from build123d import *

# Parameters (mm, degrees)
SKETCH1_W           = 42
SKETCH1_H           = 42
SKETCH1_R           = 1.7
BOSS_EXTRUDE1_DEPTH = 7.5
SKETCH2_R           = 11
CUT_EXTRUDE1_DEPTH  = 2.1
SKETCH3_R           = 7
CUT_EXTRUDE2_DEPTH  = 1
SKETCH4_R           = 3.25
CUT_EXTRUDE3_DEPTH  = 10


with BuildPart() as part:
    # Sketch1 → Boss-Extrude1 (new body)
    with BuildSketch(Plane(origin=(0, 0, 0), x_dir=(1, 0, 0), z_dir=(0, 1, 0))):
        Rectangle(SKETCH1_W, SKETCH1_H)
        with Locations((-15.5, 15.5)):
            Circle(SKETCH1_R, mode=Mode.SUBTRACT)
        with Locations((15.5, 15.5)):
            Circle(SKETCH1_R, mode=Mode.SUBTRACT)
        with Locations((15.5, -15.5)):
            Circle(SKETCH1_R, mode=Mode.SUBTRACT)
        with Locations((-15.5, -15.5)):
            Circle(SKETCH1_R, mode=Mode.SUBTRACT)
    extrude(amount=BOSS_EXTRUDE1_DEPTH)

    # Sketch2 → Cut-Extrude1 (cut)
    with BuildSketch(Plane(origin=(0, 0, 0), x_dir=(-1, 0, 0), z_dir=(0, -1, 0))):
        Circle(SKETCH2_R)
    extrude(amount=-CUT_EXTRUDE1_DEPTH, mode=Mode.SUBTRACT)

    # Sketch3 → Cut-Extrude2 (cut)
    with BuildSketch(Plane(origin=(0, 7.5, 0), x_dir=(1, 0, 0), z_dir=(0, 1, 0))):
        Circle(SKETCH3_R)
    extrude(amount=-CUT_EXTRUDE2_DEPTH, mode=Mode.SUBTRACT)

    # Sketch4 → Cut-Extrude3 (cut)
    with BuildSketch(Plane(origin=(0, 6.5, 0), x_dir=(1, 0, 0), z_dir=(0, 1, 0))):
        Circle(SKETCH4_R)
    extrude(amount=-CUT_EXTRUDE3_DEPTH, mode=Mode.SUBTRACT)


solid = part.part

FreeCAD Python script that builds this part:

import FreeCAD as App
import Part
import Sketcher

V = App.Vector

doc = App.newDocument("Part")
body = doc.addObject("PartDesign::Body", "Body")

# Sketch on XZ plane
sketch1 = body.newObject("Sketcher::SketchObject", "Sketch")
sketch1.AttachmentSupport = (doc.getObject("XZ_Plane"), [""])
sketch1.MapMode = "FlatFace"
sketch1.addGeometry([
    Part.LineSegment(V(-21, -21, 0), V(-21, 21, 0)),  # 0
    Part.LineSegment(V(-21, 21, 0), V(21, 21, 0)),  # 1
    Part.LineSegment(V(21, 21, 0), V(21, -21, 0)),  # 2
    Part.LineSegment(V(21, -21, 0), V(-21, -21, 0)),  # 3
    Part.Circle(V(-15.5, 15.5, 0), V(0, 0, 1), 1.7),  # 4
    Part.Circle(V(15.5, 15.5, 0), V(0, 0, 1), 1.7),  # 5
    Part.Circle(V(-15.5, -15.5, 0), V(0, 0, 1), 1.7),  # 6
    Part.Circle(V(15.5, -15.5, 0), V(0, 0, 1), 1.7),  # 7
], False)
sketch1.addConstraint([
    Sketcher.Constraint("Coincident", 0, 2, 1, 1),
    Sketcher.Constraint("Coincident", 1, 2, 2, 1),
    Sketcher.Constraint("Coincident", 2, 2, 3, 1),
    Sketcher.Constraint("Coincident", 3, 2, 0, 1),
    Sketcher.Constraint("Vertical", 0),
    Sketcher.Constraint("Horizontal", 1),
    Sketcher.Constraint("Vertical", 2),
    Sketcher.Constraint("Horizontal", 3),
    Sketcher.Constraint("Equal", 4, 5),
    Sketcher.Constraint("Equal", 5, 6),
    Sketcher.Constraint("Equal", 6, 7),
    Sketcher.Constraint("Symmetric", 5, 3, 6, 3, -1, 1),
    Sketcher.Constraint("Symmetric", 4, 3, 7, 3, -1, 1),
    Sketcher.Constraint("Symmetric", 0, 2, 2, 2, -1, 1),
    Sketcher.Constraint("Symmetric", 4, 3, 5, 3, -2),
    Sketcher.Constraint("Equal", 3, 0),
    Sketcher.Constraint("Diameter", 4, 3.4),
    Sketcher.Constraint("DistanceX", 1, 1, 1, 2, 42.0),
    Sketcher.Constraint("DistanceX", 4, 3, 5, 3, 31.0),
    Sketcher.Constraint("DistanceY", 6, 3, 4, 3, 31.0),
])
pad1 = body.newObject("PartDesign::Pad", "Pad")
pad1.Profile = sketch1
pad1.Length = 7.5
pad1.Reversed = True

# Sketch on XZ plane
sketch2 = body.newObject("Sketcher::SketchObject", "Sketch001")
sketch2.AttachmentSupport = (doc.getObject("XZ_Plane"), [""])
sketch2.MapMode = "FlatFace"
sketch2.addGeometry(Part.Circle(V(0, 0, 0), V(0, 0, 1), 11), False)
sketch2.addConstraint([
    Sketcher.Constraint("Coincident", 0, 3, -1, 1),
    Sketcher.Constraint("Diameter", 0, 22.0),
])
pocket1 = body.newObject("PartDesign::Pocket", "Pocket")
pocket1.Profile = sketch2
pocket1.Length = 2.1

# Sketch on XZ plane
sketch3 = body.newObject("Sketcher::SketchObject", "Sketch002")
sketch3.AttachmentSupport = (doc.getObject("XZ_Plane"), [""])
sketch3.MapMode = "FlatFace"
sketch3.AttachmentOffset = App.Placement(V(0, 0, -7.5), App.Rotation())
sketch3.addGeometry(Part.Circle(V(0, 0, 0), V(0, 0, 1), 7), False)
sketch3.addConstraint([
    Sketcher.Constraint("Coincident", 0, 3, -1, 1),
    Sketcher.Constraint("Diameter", 0, 14.0),
])
pocket2 = body.newObject("PartDesign::Pocket", "Pocket001")
pocket2.Profile = sketch3
pocket2.Length = 1
pocket2.Reversed = True

# Sketch on XZ plane
sketch4 = body.newObject("Sketcher::SketchObject", "Sketch003")
sketch4.AttachmentSupport = (doc.getObject("XZ_Plane"), [""])
sketch4.MapMode = "FlatFace"
sketch4.AttachmentOffset = App.Placement(V(0, 0, -6.5), App.Rotation())
sketch4.addGeometry(Part.Circle(V(0, 0, 0), V(0, 0, 1), 3.2), False)
sketch4.addConstraint([
    Sketcher.Constraint("Coincident", 0, 3, -1, 1),
    Sketcher.Constraint("Diameter", 0, 6.5),
])
pocket3 = body.newObject("PartDesign::Pocket", "Pocket002")
pocket3.Profile = sketch4
pocket3.Length = 10
pocket3.Reversed = True

doc.recompute()
